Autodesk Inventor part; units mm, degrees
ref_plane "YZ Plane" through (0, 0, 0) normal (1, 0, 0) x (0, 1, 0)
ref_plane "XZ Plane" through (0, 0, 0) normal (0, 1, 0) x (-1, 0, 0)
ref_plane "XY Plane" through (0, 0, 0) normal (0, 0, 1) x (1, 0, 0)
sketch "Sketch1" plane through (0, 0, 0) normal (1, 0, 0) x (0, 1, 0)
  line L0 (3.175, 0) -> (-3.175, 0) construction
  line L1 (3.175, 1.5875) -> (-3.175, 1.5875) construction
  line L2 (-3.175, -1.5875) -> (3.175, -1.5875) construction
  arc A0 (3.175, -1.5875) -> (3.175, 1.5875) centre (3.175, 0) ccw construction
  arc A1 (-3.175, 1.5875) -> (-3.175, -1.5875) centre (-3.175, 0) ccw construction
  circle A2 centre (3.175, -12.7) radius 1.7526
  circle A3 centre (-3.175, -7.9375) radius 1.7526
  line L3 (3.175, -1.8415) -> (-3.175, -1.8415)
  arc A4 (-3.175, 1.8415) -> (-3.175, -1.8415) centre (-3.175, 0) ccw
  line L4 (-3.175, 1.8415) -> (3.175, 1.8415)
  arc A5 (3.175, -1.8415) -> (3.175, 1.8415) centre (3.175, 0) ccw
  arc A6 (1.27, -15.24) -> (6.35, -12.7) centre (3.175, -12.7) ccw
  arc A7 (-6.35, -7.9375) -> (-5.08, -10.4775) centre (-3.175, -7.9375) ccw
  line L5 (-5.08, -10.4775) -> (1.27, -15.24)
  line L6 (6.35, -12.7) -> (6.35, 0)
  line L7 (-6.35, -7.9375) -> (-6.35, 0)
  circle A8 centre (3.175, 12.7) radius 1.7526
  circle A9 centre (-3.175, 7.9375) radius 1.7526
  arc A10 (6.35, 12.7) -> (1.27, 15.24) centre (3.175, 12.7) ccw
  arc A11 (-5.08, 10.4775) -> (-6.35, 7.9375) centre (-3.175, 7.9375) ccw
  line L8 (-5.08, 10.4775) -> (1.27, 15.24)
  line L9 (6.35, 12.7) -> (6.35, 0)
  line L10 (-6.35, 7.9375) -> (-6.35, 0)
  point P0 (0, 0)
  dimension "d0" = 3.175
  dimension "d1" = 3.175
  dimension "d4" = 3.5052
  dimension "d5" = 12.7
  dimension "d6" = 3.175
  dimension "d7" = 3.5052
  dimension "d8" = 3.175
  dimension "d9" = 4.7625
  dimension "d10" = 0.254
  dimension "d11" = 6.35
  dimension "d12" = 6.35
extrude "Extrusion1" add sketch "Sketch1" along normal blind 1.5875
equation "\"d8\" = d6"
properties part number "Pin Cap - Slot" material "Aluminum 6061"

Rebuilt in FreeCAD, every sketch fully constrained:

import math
import FreeCAD as App
import Part
import Sketcher
Q = App.Units.Quantity

doc = App.newDocument("Part")
body = doc.addObject("PartDesign::Body", "Body")

sketch1 = body.newObject("Sketcher::SketchObject", "Sketch")
sketch1.AttachmentSupport = (doc.getObject("YZ_Plane"), [""])
sketch1.MapMode = "FlatFace"
sketch1.addGeometry(Part.LineSegment(App.Vector(-5.1, -10.5, 0), App.Vector(1.3, -15.2, 0)), False)
sketch1.addGeometry(Part.ArcOfCircle(Part.Circle(App.Vector(3.2, -12.7, 0), App.Vector(0, 0, 1), 3.2), math.radians(-127), math.radians(0)), False)
sketch1.addGeometry(Part.LineSegment(App.Vector(6.3, -12.7, 0), App.Vector(6.3, 12.7, 0)), False)
sketch1.addGeometry(Part.ArcOfCircle(Part.Circle(App.Vector(3.2, 12.7, 0), App.Vector(0, 0, 1), 3.2), math.radians(0), math.radians(127)), False)
sketch1.addGeometry(Part.LineSegment(App.Vector(1.3, 15.2, 0), App.Vector(-5.1, 10.5, 0)), False)
sketch1.addGeometry(Part.ArcOfCircle(Part.Circle(App.Vector(-3.2, 7.9, 0), App.Vector(0, 0, 1), 3.2), math.radians(127), math.radians(180)), False)
sketch1.addGeometry(Part.LineSegment(App.Vector(-6.3, 7.9, 0), App.Vector(-6.3, -7.9, 0)), False)
sketch1.addGeometry(Part.ArcOfCircle(Part.Circle(App.Vector(-3.2, -7.9, 0), App.Vector(0, 0, 1), 3.2), math.radians(180), math.radians(233)), False)
sketch1.addGeometry(Part.Circle(App.Vector(-3.2, -7.9, 0), App.Vector(0, 0, 1), 1.8), False)
sketch1.addGeometry(Part.Circle(App.Vector(3.2, -12.7, 0), App.Vector(0, 0, 1), 1.8), False)
sketch1.addGeometry(Part.ArcOfCircle(Part.Circle(App.Vector(3.2, 0, 0), App.Vector(0, 0, 1), 1.8), math.radians(-90), math.radians(90)), False)
sketch1.addGeometry(Part.LineSegment(App.Vector(3.2, -1.8, 0), App.Vector(-3.2, -1.8, 0)), False)
sketch1.addGeometry(Part.ArcOfCircle(Part.Circle(App.Vector(-3.2, 0, 0), App.Vector(0, 0, 1), 1.8), math.radians(90), math.radians(270)), False)
sketch1.addGeometry(Part.LineSegment(App.Vector(-3.2, 1.8, 0), App.Vector(3.2, 1.8, 0)), False)
sketch1.addGeometry(Part.Circle(App.Vector(-3.2, 7.9, 0), App.Vector(0, 0, 1), 1.8), False)
sketch1.addGeometry(Part.Circle(App.Vector(3.2, 12.7, 0), App.Vector(0, 0, 1), 1.8), False)
sketch1.addConstraint(Sketcher.Constraint("Tangent", 0, 2, 1, 1))
sketch1.addConstraint(Sketcher.Constraint("Tangent", 1, 2, 2, 1))
sketch1.addConstraint(Sketcher.Constraint("Tangent", 2, 2, 3, 1))
sketch1.addConstraint(Sketcher.Constraint("Tangent", 3, 2, 4, 1))
sketch1.addConstraint(Sketcher.Constraint("Tangent", 4, 2, 5, 1))
sketch1.addConstraint(Sketcher.Constraint("Tangent", 5, 2, 6, 1))
sketch1.addConstraint(Sketcher.Constraint("Tangent", 6, 2, 7, 1))
sketch1.addConstraint(Sketcher.Constraint("Tangent", 7, 2, 0, 1))
sketch1.addConstraint(Sketcher.Constraint("Tangent", 10, 1, 11, 1))
sketch1.addConstraint(Sketcher.Constraint("Tangent", 11, 2, 12, 2))
sketch1.addConstraint(Sketcher.Constraint("Tangent", 12, 1, 13, 1))
sketch1.addConstraint(Sketcher.Constraint("Tangent", 13, 2, 10, 2))
sketch1.addConstraint(Sketcher.Constraint("Vertical", 2))
sketch1.addConstraint(Sketcher.Constraint("Vertical", 6))
sketch1.addConstraint(Sketcher.Constraint("Horizontal", 11))
sketch1.addConstraint(Sketcher.Constraint("Horizontal", 13))
sketch1.addConstraint(Sketcher.Constraint("Coincident", 8, 3, 7, 3))
sketch1.addConstraint(Sketcher.Constraint("Coincident", 9, 3, 1, 3))
sketch1.addConstraint(Sketcher.Constraint("Coincident", 14, 3, 5, 3))
sketch1.addConstraint(Sketcher.Constraint("Coincident", 15, 3, 3, 3))
sketch1.addConstraint(Sketcher.Constraint("Equal", 1, 3))
sketch1.addConstraint(Sketcher.Constraint("Equal", 3, 5))
sketch1.addConstraint(Sketcher.Constraint("Equal", 5, 7))
sketch1.addConstraint(Sketcher.Constraint("Equal", 8, 9))
sketch1.addConstraint(Sketcher.Constraint("Equal", 9, 14))
sketch1.addConstraint(Sketcher.Constraint("Equal", 14, 15))
sketch1.addConstraint(Sketcher.Constraint("Symmetric", 10, 3, 12, 3, -1, 1))
sketch1.addConstraint(Sketcher.Constraint("Symmetric", 0, 2, 3, 2, -1))
sketch1.addConstraint(Sketcher.Constraint("Vertical", 9, 3, 10, 3))
sketch1.addConstraint(Sketcher.Constraint("Vertical", 8, 3, 12, 3))
sketch1.addConstraint(Sketcher.Constraint("Diameter", 8, Q("0.138 in")))
sketch1.addConstraint(Sketcher.Constraint("Radius", 1, Q("0.125 in")))
sketch1.addConstraint(Sketcher.Constraint("DistanceX", 11, 2, 11, 1, Q("0.25 in")))
sketch1.addConstraint(Sketcher.Constraint("DistanceY", 1, 3, -1, 1, Q("0.5 in")))
sketch1.addConstraint(Sketcher.Constraint("DistanceY", 5, 3, 3, 3, Q("0.1875 in")))
sketch1.addConstraint(Sketcher.Constraint("Radius", 10, Q("0.0725 in")))
pad1 = body.newObject("PartDesign::Pad", "Pad")
pad1.Profile = sketch1
pad1.Length = Q("0.0625 in")

doc.recompute()
